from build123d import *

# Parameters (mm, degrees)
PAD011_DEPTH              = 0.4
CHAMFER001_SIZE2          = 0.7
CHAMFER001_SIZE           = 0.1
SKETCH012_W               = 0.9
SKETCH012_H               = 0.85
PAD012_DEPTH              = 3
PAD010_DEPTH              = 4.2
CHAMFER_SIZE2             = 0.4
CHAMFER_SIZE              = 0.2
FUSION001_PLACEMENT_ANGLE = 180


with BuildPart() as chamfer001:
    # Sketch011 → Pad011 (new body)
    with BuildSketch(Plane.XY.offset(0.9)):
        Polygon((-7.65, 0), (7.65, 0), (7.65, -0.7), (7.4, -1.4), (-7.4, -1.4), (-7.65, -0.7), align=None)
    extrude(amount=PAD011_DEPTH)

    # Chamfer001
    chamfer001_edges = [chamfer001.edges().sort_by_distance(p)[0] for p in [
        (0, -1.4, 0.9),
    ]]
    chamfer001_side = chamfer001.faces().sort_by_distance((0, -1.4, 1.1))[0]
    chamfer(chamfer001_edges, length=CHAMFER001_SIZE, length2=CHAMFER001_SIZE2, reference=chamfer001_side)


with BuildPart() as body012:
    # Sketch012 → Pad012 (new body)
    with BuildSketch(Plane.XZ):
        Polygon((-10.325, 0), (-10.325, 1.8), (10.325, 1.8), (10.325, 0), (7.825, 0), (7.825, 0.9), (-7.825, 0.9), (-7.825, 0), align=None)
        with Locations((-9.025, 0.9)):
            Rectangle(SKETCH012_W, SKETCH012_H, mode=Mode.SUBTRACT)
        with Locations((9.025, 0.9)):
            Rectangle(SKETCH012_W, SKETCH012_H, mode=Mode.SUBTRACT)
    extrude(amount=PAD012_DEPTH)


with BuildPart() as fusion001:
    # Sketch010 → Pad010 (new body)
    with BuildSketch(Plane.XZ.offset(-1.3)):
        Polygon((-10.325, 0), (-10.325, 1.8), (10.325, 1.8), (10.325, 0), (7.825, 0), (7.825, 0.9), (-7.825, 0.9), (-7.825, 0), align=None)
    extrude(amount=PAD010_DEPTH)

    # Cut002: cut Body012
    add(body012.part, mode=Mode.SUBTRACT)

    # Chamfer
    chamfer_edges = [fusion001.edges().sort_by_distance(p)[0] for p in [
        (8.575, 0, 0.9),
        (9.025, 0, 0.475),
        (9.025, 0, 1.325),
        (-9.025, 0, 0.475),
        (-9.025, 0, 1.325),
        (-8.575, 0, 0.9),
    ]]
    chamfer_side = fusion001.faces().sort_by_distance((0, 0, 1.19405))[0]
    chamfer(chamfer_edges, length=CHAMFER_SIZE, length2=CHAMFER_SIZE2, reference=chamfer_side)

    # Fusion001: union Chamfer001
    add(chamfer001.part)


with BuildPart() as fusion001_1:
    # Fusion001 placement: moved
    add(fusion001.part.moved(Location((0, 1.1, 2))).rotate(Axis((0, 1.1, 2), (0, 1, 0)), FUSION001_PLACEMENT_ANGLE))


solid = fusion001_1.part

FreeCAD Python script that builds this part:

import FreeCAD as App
import Part
import Sketcher
Q = App.Units.Quantity


def edges_at(feature, points):
    """Names of the edges that pass closest to the given points."""
    edges = feature.Shape.Edges
    near = lambda p: min(range(len(edges)), key=lambda i: edges[i].distToShape(Part.Vertex(*p))[0])
    return sorted({f"Edge{near(p) + 1}" for p in points})


def add_polygon(sketch, points):
    """Adds a closed chain of lines whose ends are joined by coincident constraints."""
    first, n = sketch.GeometryCount, len(points)
    for a, b in zip(points, points[1:] + points[:1]):
        sketch.addGeometry(Part.LineSegment(App.Vector(*a, 0), App.Vector(*b, 0)), False)
    for i in range(n):
        sketch.addConstraint(Sketcher.Constraint("Coincident", first + i, 2, first + (i + 1) % n, 1))

doc = App.newDocument("Part")
body = doc.addObject("PartDesign::Body", "Body")

# Sketch on XY plane
sketch1 = body.newObject("Sketcher::SketchObject", "Sketch")
sketch1.AttachmentSupport = (doc.getObject("XY_Plane"), [""])
sketch1.MapMode = "FlatFace"
sketch1.AttachmentOffset = App.Placement(App.Vector(0, 0, 0.9), App.Rotation())
add_polygon(sketch1, [(7.7, 0), (-7.7, 0), (-7.7, -0.7), (-7.4, -1.4), (7.4, -1.4), (7.7, -0.7)])  # lines 0-5
sketch1.addConstraint([
    Sketcher.Constraint("Horizontal", 0),
    Sketcher.Constraint("Vertical", 1),
    Sketcher.Constraint("Horizontal", 3),
    Sketcher.Constraint("Vertical", 5),
    Sketcher.Constraint("Symmetric", 0, 2, 5, 2, -1, 1),
    Sketcher.Constraint("Horizontal", 1, 2, 4, 2),
    Sketcher.Constraint("Equal", 2, 4),
    Sketcher.Constraint("DistanceX", 0, 2, 0, 1, Q("15.3 mm")),
    Sketcher.Constraint("DistanceX", 3, 1, 3, 2, Q("14.8 mm")),
    Sketcher.Constraint("DistanceY", 1, 2, 1, 1, Q("0.7 mm")),
    Sketcher.Constraint("DistanceY", 2, 2, -1, 1, Q("1.4 mm")),
])
pad1 = body.newObject("PartDesign::Pad", "Pad")
pad1.Profile = sketch1
pad1.Length = 0.4
doc.recompute()

chamfer = body.newObject("PartDesign::Chamfer", "Chamfer")
chamfer.Base = (pad1, edges_at(pad1, [(0, -1.4, 0.9)]))
chamfer.ChamferType = "Two distances"
chamfer.Size = 0.1
chamfer.Size2 = 0.7
body2 = doc.addObject("PartDesign::Body", "Body001")

# Sketch on XZ plane
sketch2 = body2.newObject("Sketcher::SketchObject", "Sketch001")
sketch2.AttachmentSupport = (doc.getObject("XZ_Plane001"), [""])
sketch2.MapMode = "FlatFace"
add_polygon(sketch2, [(-10.3, 1.8), (-10.3, 0), (-7.8, 0), (-7.8, 0.9), (7.8, 0.9), (7.8, 0), (10.3, 0), (10.3, 1.8)])  # lines 0-7
add_polygon(sketch2, [(8.6, 0.5), (8.6, 1.3), (9.5, 1.3), (9.5, 0.5)])  # lines 8-11
add_polygon(sketch2, [(-9.5, 0.5), (-9.5, 1.3), (-8.6, 1.3), (-8.6, 0.5)])  # lines 12-15
sketch2.addConstraint([
    Sketcher.Constraint("Vertical", 0),
    Sketcher.Constraint("Horizontal", 1),
    Sketcher.Constraint("Vertical", 2),
    Sketcher.Constraint("Horizontal", 3),
    Sketcher.Constraint("Vertical", 4),
    Sketcher.Constraint("Horizontal", 5),
    Sketcher.Constraint("Vertical", 6),
    Sketcher.Constraint("Horizontal", 7),
    Sketcher.Constraint("Vertical", 8),
    Sketcher.Constraint("Horizontal", 9),
    Sketcher.Constraint("Vertical", 10),
    Sketcher.Constraint("Horizontal", 11),
    Sketcher.Constraint("Vertical", 12),
    Sketcher.Constraint("Horizontal", 13),
    Sketcher.Constraint("Vertical", 14),
    Sketcher.Constraint("Horizontal", 15),
    Sketcher.Constraint("Symmetric", 1, 2, 4, 2, -1, 1),
    Sketcher.Constraint("Symmetric", 0, 2, 5, 2, -2),
    Sketcher.Constraint("Symmetric", 9, 2, 12, 2, -2),
    Sketcher.Constraint("Symmetric", 11, 2, 14, 2, -2),
    Sketcher.Constraint("Equal", 15, 2),
    Sketcher.Constraint("DistanceX", 1, 1, 1, 2, Q("2.5 mm")),
    Sketcher.Constraint("DistanceX", 9, 1, 9, 2, Q("0.9 mm")),
    Sketcher.Constraint("DistanceY", 0, 2, 0, 1, Q("1.8 mm")),
    Sketcher.Constraint("DistanceX", 3, 1, 3, 2, Q("15.65 mm")),
    Sketcher.Constraint("DistanceY", 8, 1, 8, 2, Q("0.85 mm")),
    Sketcher.Constraint("DistanceX", 2, 2, 8, 2, Q("16.4 mm")),
    Sketcher.Constraint("DistanceY", -1, 1, 8, 2, Q("1.325 mm")),
])
pad2 = body2.newObject("PartDesign::Pad", "Pad001")
pad2.Profile = sketch2
pad2.Length = 3
body3 = doc.addObject("PartDesign::Body", "Body002")

# Sketch on XZ plane
sketch3 = body3.newObject("Sketcher::SketchObject", "Sketch002")
sketch3.AttachmentSupport = (doc.getObject("XZ_Plane002"), [""])
sketch3.MapMode = "FlatFace"
sketch3.AttachmentOffset = App.Placement(App.Vector(0, 0, -1.3), App.Rotation())
add_polygon(sketch3, [(-10.3, 1.8), (-10.3, 0), (-7.8, 0), (-7.8, 0.9), (7.8, 0.9), (7.8, 0), (10.3, 0), (10.3, 1.8)])  # lines 0-7
sketch3.addConstraint([
    Sketcher.Constraint("Vertical", 0),
    Sketcher.Constraint("Horizontal", 1),
    Sketcher.Constraint("Vertical", 2),
    Sketcher.Constraint("Horizontal", 3),
    Sketcher.Constraint("Vertical", 4),
    Sketcher.Constraint("Horizontal", 5),
    Sketcher.Constraint("Vertical", 6),
    Sketcher.Constraint("Horizontal", 7),
    Sketcher.Constraint("Symmetric", 1, 2, 4, 2, -1, 1),
    Sketcher.Constraint("Symmetric", 0, 2, 5, 2, -2),
    Sketcher.Constraint("DistanceX", 1, 1, 1, 2, Q("2.5 mm")),
    Sketcher.Constraint("DistanceY", 0, 2, 0, 1, Q("1.8 mm")),
    Sketcher.Constraint("DistanceY", 2, 1, 2, 2, Q("0.9 mm")),
    Sketcher.Constraint("DistanceX", 3, 1, 3, 2, Q("15.65 mm")),
])
pad3 = body3.newObject("PartDesign::Pad", "Pad002")
pad3.Profile = sketch3
pad3.Length = 4.2
doc.recompute()

boolean = body3.newObject("PartDesign::Boolean", "Boolean")
boolean.Type = "Cut"
boolean.addObjects([body2])
doc.recompute()

chamfer2 = body3.newObject("PartDesign::Chamfer", "Chamfer001")
chamfer2.Base = (boolean, edges_at(boolean, [
    (8.575, 0, 0.9),
    (9.025, 0, 0.475),
    (9.025, 0, 1.325),
    (-9.025, 0, 0.475),
    (-9.025, 0, 1.325),
    (-8.575, 0, 0.9),
]))
chamfer2.ChamferType = "Two distances"
chamfer2.Size = 0.2
chamfer2.Size2 = 0.4
doc.recompute()

boolean2 = body3.newObject("PartDesign::Boolean", "Boolean001")
boolean2.Type = "Fuse"
boolean2.addObjects([body])
body4 = doc.addObject("PartDesign::Body", "Body003")
doc.recompute()

body3.Placement = App.Placement(App.Vector(0, 1.1, 2), App.Rotation(App.Vector(0, 1, 0), 180))
boolean3 = body4.newObject("PartDesign::Boolean", "Boolean002")
boolean3.Type = "Fuse"
boolean3.addObjects([body3])

doc.recompute()
